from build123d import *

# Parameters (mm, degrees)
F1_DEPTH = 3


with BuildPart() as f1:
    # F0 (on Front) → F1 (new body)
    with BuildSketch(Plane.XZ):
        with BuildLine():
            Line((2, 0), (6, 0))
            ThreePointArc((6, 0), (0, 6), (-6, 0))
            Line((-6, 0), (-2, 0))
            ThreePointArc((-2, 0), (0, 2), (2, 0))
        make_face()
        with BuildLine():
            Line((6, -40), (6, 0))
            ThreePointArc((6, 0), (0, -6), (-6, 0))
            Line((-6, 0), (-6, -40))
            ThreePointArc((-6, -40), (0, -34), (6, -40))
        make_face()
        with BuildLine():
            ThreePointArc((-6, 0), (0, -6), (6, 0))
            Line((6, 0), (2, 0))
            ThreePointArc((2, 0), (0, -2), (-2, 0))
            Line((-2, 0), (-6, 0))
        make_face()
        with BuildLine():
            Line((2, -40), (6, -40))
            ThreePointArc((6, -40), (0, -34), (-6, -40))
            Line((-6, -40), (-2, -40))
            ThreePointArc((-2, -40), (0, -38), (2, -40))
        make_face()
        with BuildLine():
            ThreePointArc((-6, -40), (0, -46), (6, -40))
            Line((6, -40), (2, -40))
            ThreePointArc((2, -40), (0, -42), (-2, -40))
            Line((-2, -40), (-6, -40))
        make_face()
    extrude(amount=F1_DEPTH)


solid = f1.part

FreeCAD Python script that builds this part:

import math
import FreeCAD as App
import Part
import Sketcher
from FreeCAD import Vector
Q = App.Units.Quantity

doc = App.newDocument("Part")
params = doc.addObject("Spreadsheet::Sheet", "Params")
for row, (alias, value) in enumerate([
    ("sketch1_diameter", "4 mm"),
    ("sketch1_radius", "6 mm"),
    ("sketch1_height", "40 mm"),
    ("pad1_length", "3 mm"),
], start=1):
    params.set(f"A{row}", alias)
    params.set(f"B{row}", "=" + value)
    params.setAlias(f"B{row}", alias)

body = doc.addObject("PartDesign::Body", "Body")

sketch1 = body.newObject("Sketcher::SketchObject", "Sketch")
sketch1.AttachmentSupport = (doc.getObject("XZ_Plane"), [""])
sketch1.MapMode = "FlatFace"
sketch1.addGeometry([
    Part.ArcOfCircle(Part.Circle(Vector(0, 0, 0), Vector(0, 0, 1), 6), math.radians(0), math.radians(180)),
    Part.LineSegment(Vector(-6, 0, 0), Vector(-6, -40, 0)),
    Part.ArcOfCircle(Part.Circle(Vector(0, -40, 0), Vector(0, 0, 1), 6), math.radians(180), math.radians(360)),
    Part.LineSegment(Vector(6, -40, 0), Vector(6, 0, 0)),
    Part.Circle(Vector(0, -40, 0), Vector(0, 0, 1), 2),
    Part.Circle(Vector(0, 0, 0), Vector(0, 0, 1), 2),
], False)
sketch1.addConstraint([
    Sketcher.Constraint("Tangent", 0, 2, 1, 1),
    Sketcher.Constraint("Tangent", 1, 2, 2, 1),
    Sketcher.Constraint("Tangent", 2, 2, 3, 1),
    Sketcher.Constraint("Tangent", 3, 2, 0, 1),
    Sketcher.Constraint("Vertical", 1),
    Sketcher.Constraint("Vertical", 3),
    Sketcher.Constraint("Coincident", 0, 3, -1, 1),
    Sketcher.Constraint("Coincident", 5, 3, -1, 1),
    Sketcher.Constraint("Coincident", 4, 3, 2, 3),
    Sketcher.Constraint("Equal", 4, 5),
    Sketcher.Constraint("Diameter", 4, Q("4 mm")),
    Sketcher.Constraint("Radius", 0, Q("6 mm")),
    Sketcher.Constraint("DistanceY", 1, 2, 1, 1, Q("40 mm")),
])
sketch1.setExpression("Constraints[10]", "Params.sketch1_diameter")
sketch1.setExpression("Constraints[11]", "Params.sketch1_radius")
sketch1.setExpression("Constraints[12]", "Params.sketch1_height")
pad1 = body.newObject("PartDesign::Pad", "Pad")
pad1.Profile = sketch1
pad1.setExpression("Length", "Params.pad1_length")

doc.recompute()
